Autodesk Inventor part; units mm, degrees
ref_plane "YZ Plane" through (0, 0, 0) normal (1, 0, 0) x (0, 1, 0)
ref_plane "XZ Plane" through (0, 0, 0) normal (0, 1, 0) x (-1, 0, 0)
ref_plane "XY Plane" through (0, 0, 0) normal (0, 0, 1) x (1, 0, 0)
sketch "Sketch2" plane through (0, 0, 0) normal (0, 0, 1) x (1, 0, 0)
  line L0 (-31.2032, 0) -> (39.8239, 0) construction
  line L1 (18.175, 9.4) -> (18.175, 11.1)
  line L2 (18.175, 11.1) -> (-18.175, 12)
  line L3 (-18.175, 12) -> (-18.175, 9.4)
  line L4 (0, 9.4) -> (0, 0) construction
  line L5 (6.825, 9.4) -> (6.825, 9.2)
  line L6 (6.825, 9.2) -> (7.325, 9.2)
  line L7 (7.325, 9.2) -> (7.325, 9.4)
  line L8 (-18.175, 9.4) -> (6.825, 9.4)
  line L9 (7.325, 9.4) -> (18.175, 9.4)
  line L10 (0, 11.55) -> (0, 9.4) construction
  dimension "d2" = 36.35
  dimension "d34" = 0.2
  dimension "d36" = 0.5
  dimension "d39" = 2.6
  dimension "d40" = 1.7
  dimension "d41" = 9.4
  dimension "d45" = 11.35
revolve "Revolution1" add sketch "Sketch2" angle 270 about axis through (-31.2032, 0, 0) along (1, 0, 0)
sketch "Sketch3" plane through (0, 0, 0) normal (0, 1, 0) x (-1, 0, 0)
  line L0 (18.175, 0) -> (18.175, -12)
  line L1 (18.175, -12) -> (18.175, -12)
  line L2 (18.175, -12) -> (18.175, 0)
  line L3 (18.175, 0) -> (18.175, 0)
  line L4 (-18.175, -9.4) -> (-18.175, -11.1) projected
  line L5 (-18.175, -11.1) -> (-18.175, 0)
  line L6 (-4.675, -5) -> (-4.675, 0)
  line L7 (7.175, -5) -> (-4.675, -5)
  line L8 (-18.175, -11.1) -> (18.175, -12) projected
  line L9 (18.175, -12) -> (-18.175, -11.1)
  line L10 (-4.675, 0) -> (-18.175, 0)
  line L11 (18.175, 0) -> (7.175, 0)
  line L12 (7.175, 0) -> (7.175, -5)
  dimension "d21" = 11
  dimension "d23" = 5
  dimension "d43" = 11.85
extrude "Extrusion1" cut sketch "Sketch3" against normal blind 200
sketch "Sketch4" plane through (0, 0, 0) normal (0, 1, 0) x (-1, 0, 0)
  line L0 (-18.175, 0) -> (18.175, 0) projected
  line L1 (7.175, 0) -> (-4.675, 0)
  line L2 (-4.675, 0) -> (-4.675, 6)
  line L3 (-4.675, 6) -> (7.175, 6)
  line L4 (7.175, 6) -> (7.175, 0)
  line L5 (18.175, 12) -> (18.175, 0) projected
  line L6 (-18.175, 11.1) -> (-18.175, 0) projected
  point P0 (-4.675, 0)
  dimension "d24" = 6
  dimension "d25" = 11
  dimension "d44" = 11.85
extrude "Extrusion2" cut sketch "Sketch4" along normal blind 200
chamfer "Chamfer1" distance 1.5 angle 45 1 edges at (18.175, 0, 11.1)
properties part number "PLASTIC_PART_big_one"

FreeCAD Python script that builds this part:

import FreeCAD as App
import Part
import Sketcher


def edges_at(feature, points):
    """Names of the edges that pass closest to the given points."""
    edges = feature.Shape.Edges
    near = lambda p: min(range(len(edges)), key=lambda i: edges[i].distToShape(Part.Vertex(*p))[0])
    return sorted({f"Edge{near(p) + 1}" for p in points})

doc = App.newDocument("Part")
body = doc.addObject("PartDesign::Body", "Body")

# Sketch on XY plane
sketch1 = body.newObject("Sketcher::SketchObject", "Sketch")
sketch1.AttachmentSupport = (doc.getObject("XY_Plane"), [""])
sketch1.MapMode = "FlatFace"
sketch1.addGeometry([
    Part.LineSegment(App.Vector(7.33, 9.4, 0), App.Vector(18.18, 9.4, 0)),  # 0
    Part.LineSegment(App.Vector(18.18, 9.4, 0), App.Vector(18.18, 11.1, 0)),  # 1
    Part.LineSegment(App.Vector(18.18, 11.1, 0), App.Vector(-18.18, 12, 0)),  # 2
    Part.LineSegment(App.Vector(-18.18, 12, 0), App.Vector(-18.18, 9.4, 0)),  # 3
    Part.LineSegment(App.Vector(-18.18, 9.4, 0), App.Vector(6.83, 9.4, 0)),  # 4
    Part.LineSegment(App.Vector(6.83, 9.4, 0), App.Vector(6.83, 9.2, 0)),  # 5
    Part.LineSegment(App.Vector(6.83, 9.2, 0), App.Vector(7.33, 9.2, 0)),  # 6
    Part.LineSegment(App.Vector(7.33, 9.2, 0), App.Vector(7.33, 9.4, 0)),  # 7
], False)
sketch1.addConstraint([
    Sketcher.Constraint("Coincident", 0, 2, 1, 1),
    Sketcher.Constraint("Coincident", 1, 2, 2, 1),
    Sketcher.Constraint("Coincident", 2, 2, 3, 1),
    Sketcher.Constraint("Coincident", 3, 2, 4, 1),
    Sketcher.Constraint("Coincident", 4, 2, 5, 1),
    Sketcher.Constraint("Coincident", 5, 2, 6, 1),
    Sketcher.Constraint("Coincident", 6, 2, 7, 1),
    Sketcher.Constraint("Coincident", 7, 2, 0, 1),
    Sketcher.Constraint("Horizontal", 0),
    Sketcher.Constraint("Vertical", 1),
    Sketcher.Constraint("Vertical", 3),
    Sketcher.Constraint("Horizontal", 4),
    Sketcher.Constraint("Vertical", 5),
    Sketcher.Constraint("Horizontal", 6),
    Sketcher.Constraint("Vertical", 7),
    Sketcher.Constraint("Symmetric", 0, 2, 3, 2, -2),
    Sketcher.Constraint("DistanceX", 6, 1, 6, 2, 0.5),
    Sketcher.Constraint("DistanceY", 1, 1, 1, 2, 1.7),
    Sketcher.Constraint("DistanceY", 3, 2, 3, 1, 2.6),
    Sketcher.Constraint("DistanceY", 5, 2, 5, 1, 0.2),
    Sketcher.Constraint("DistanceY", -1, 1, 0, 2, 9.4),
    Sketcher.Constraint("DistanceX", 4, 1, 4, 2, 25.0),
    Sketcher.Constraint("DistanceX", 2, 2, 1, 2, 36.35),
])
revolution = body.newObject("PartDesign::Revolution", "Revolution")
revolution.Profile = sketch1
revolution.ReferenceAxis = (sketch1, ["H_Axis"])
revolution.Angle = 270

# Sketch on XZ plane
sketch2 = body.newObject("Sketcher::SketchObject", "Sketch001")
sketch2.AttachmentSupport = (doc.getObject("XZ_Plane"), [""])
sketch2.MapMode = "FlatFace"
sketch2.addGeometry([
    Part.LineSegment(App.Vector(-18, -12, 0), App.Vector(-18, 0, 0)),  # 0
    Part.LineSegment(App.Vector(-18, 0, 0), App.Vector(-7, 0, 0)),  # 1
    Part.LineSegment(App.Vector(-7, 0, 0), App.Vector(-7, -5, 0)),  # 2
    Part.LineSegment(App.Vector(-7, -5, 0), App.Vector(5, -5, 0)),  # 3
    Part.LineSegment(App.Vector(5, -5, 0), App.Vector(5, 0, 0)),  # 4
    Part.LineSegment(App.Vector(5, 0, 0), App.Vector(18, 0, 0)),  # 5
    Part.LineSegment(App.Vector(18, 0, 0), App.Vector(18, -11, 0)),  # 6
    Part.LineSegment(App.Vector(18, -11, 0), App.Vector(-18, -12, 0)),  # 7
], False)
sketch2.addConstraint([
    Sketcher.Constraint("Coincident", 0, 2, 1, 1),
    Sketcher.Constraint("Coincident", 1, 2, 2, 1),
    Sketcher.Constraint("Coincident", 2, 2, 3, 1),
    Sketcher.Constraint("Coincident", 3, 2, 4, 1),
    Sketcher.Constraint("Coincident", 4, 2, 5, 1),
    Sketcher.Constraint("Coincident", 5, 2, 6, 1),
    Sketcher.Constraint("Coincident", 6, 2, 7, 1),
    Sketcher.Constraint("Coincident", 7, 2, 0, 1),
    Sketcher.Constraint("Vertical", 0),
    Sketcher.Constraint("Horizontal", 1),
    Sketcher.Constraint("Vertical", 2),
    Sketcher.Constraint("Horizontal", 3),
    Sketcher.Constraint("Vertical", 4),
    Sketcher.Constraint("Horizontal", 5),
    Sketcher.Constraint("Vertical", 6),
    Sketcher.Constraint("Symmetric", 0, 2, 5, 2, -1, 1),
    Sketcher.Constraint("PointOnObject", 0, 2, -1),
    Sketcher.Constraint("DistanceX", 1, 1, 1, 2, 11.0),
    Sketcher.Constraint("DistanceY", 2, 2, 2, 1, 5.0),
    Sketcher.Constraint("DistanceX", 3, 1, 3, 2, 11.85),
    Sketcher.Constraint("DistanceY", 0, 1, 0, 2, 12.0),
    Sketcher.Constraint("DistanceX", 5, 1, 5, 2, 13.5),
    Sketcher.Constraint("DistanceY", 6, 2, 6, 1, 11.1),
])
pocket1 = body.newObject("PartDesign::Pocket", "Pocket")
pocket1.Profile = sketch2
pocket1.Length = 200
pocket1.Reversed = True

# Sketch on XZ plane
sketch3 = body.newObject("Sketcher::SketchObject", "Sketch002")
sketch3.AttachmentSupport = (doc.getObject("XZ_Plane"), [""])
sketch3.MapMode = "FlatFace"
sketch3.addGeometry([
    Part.LineSegment(App.Vector(5, 6, 0), App.Vector(5, 0, 0)),
    Part.LineSegment(App.Vector(5, 0, 0), App.Vector(-7, 0, 0)),
    Part.LineSegment(App.Vector(-7, 0, 0), App.Vector(-7, 6, 0)),
    Part.LineSegment(App.Vector(-7, 6, 0), App.Vector(5, 6, 0)),
], False)
sketch3.addConstraint([
    Sketcher.Constraint("Coincident", 0, 2, 1, 1),
    Sketcher.Constraint("Coincident", 1, 2, 2, 1),
    Sketcher.Constraint("Coincident", 2, 2, 3, 1),
    Sketcher.Constraint("Coincident", 3, 2, 0, 1),
    Sketcher.Constraint("Vertical", 0),
    Sketcher.Constraint("Horizontal", 1),
    Sketcher.Constraint("Vertical", 2),
    Sketcher.Constraint("Horizontal", 3),
    Sketcher.Constraint("PointOnObject", 0, 2, -1),
    Sketcher.Constraint("DistanceY", 0, 2, 0, 1, 6.0),
    Sketcher.Constraint("DistanceX", 1, 2, 1, 1, 11.85),
    Sketcher.Constraint("DistanceX", -1, 1, 0, 2, 4.675),
])
pocket2 = body.newObject("PartDesign::Pocket", "Pocket001")
pocket2.Profile = sketch3
pocket2.Length = 200
doc.recompute()

chamfer = body.newObject("PartDesign::Chamfer", "Chamfer")
chamfer.Base = (pocket2, edges_at(pocket2, [(18.175, 0, 11.1)]))
chamfer.Size = 1.5

doc.recompute()
